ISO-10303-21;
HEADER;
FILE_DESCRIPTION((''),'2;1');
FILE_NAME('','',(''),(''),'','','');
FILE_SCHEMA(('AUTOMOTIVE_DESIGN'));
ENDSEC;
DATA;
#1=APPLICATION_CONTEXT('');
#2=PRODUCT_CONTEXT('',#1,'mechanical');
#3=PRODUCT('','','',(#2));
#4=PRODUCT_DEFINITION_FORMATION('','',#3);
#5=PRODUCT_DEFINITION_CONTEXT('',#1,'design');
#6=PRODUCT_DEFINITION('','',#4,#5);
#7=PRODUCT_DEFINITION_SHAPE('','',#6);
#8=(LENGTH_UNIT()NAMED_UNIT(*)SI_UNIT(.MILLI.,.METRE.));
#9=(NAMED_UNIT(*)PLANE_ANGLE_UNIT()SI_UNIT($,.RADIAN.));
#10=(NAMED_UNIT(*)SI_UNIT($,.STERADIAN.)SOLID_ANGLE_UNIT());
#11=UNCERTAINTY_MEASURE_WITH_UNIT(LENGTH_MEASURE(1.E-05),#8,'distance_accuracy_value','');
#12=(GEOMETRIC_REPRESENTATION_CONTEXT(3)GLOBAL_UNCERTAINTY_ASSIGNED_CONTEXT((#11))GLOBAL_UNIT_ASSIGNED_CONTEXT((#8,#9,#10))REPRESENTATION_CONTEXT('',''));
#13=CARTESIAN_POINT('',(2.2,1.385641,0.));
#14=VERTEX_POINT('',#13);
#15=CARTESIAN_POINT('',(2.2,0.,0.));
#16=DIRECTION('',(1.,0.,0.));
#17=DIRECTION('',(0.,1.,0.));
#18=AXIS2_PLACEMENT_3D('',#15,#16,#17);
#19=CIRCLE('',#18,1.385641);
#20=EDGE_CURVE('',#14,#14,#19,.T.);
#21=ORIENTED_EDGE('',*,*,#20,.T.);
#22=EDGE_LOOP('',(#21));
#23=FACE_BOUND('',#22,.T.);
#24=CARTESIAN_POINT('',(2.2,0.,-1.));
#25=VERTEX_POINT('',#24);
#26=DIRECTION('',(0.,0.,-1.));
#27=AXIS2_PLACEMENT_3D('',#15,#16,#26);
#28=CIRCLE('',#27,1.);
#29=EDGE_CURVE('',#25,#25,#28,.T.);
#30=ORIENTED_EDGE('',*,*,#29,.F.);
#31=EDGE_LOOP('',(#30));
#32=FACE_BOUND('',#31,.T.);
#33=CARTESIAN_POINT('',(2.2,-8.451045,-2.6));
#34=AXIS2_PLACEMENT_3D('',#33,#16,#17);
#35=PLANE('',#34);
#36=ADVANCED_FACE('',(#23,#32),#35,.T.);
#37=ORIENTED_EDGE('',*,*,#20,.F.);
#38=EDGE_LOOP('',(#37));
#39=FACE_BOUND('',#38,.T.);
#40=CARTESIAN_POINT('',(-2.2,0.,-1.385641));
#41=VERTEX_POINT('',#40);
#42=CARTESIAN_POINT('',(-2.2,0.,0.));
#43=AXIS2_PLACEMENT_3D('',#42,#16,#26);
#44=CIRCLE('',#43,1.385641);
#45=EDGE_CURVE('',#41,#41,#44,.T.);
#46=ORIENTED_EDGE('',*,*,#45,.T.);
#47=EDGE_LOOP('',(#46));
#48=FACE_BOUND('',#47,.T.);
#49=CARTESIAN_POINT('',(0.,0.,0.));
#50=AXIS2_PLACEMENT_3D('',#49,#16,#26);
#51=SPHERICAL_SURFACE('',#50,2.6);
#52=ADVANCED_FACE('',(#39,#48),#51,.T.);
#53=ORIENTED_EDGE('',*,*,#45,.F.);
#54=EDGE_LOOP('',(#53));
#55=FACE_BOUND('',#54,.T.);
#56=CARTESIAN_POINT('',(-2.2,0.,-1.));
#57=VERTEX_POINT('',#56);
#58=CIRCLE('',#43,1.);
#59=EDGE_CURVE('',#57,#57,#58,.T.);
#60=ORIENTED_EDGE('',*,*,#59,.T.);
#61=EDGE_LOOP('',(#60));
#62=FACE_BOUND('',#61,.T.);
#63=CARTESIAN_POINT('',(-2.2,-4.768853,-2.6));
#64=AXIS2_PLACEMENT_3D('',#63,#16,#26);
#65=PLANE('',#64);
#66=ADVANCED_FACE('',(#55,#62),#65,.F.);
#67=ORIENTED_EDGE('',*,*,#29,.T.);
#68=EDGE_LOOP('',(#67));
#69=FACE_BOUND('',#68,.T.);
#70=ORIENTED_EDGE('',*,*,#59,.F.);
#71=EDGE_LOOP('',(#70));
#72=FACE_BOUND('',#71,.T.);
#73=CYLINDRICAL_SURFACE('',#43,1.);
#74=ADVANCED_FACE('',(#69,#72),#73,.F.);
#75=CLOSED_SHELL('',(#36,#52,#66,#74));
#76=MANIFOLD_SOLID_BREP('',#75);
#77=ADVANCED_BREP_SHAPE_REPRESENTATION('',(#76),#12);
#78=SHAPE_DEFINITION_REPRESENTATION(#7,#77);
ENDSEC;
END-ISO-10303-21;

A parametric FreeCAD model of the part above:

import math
import FreeCAD as App
import Part
import Sketcher

V = App.Vector


def add_polygon(sketch, points):
    """Adds a closed chain of lines whose ends are joined by coincident constraints."""
    first, n = sketch.GeometryCount, len(points)
    for a, b in zip(points, points[1:] + points[:1]):
        sketch.addGeometry(Part.LineSegment(App.Vector(*a, 0), App.Vector(*b, 0)), False)
    for i in range(n):
        sketch.addConstraint(Sketcher.Constraint("Coincident", first + i, 2, first + (i + 1) % n, 1))

doc = App.newDocument("Part")
body = doc.addObject("PartDesign::Body", "Body")

# Sketch on XY plane
sketch1 = doc.addObject("Sketcher::SketchObject", "Sketch")
body.addObject(sketch1)
sketch1.AttachmentSupport = (doc.XY_Plane, [""])
sketch1.MapMode = "FlatFace"
sketch1.addGeometry([
    Part.ArcOfCircle(Part.Circle(V(0, 0, 0), V(0, 0, 1), 2.6), math.radians(-90), math.radians(0)),
    Part.ArcOfCircle(Part.Circle(V(0, 0, 0), V(0, 0, 1), 2.6), math.radians(0), math.radians(90)),
    Part.LineSegment(V(0, 2.6, 0), V(0, -2.6, 0)),
], False)
sketch1.addConstraint([
    Sketcher.Constraint("Tangent", 0, 2, 1, 1),
    Sketcher.Constraint("Coincident", 1, 2, 2, 1),
    Sketcher.Constraint("Coincident", 2, 2, 0, 1),
    Sketcher.Constraint("Vertical", 2),
    Sketcher.Constraint("Coincident", 0, 3, -1, 1),
    Sketcher.Constraint("Equal", 0, 1),
    Sketcher.Constraint("PointOnObject", 0, 2, -1),
    Sketcher.Constraint("PointOnObject", 1, 2, -2),
    Sketcher.Constraint("Radius", 0, 2.6),
])
revolution = doc.addObject("PartDesign::Revolution", "Revolution")
body.addObject(revolution)
revolution.Profile = sketch1
revolution.ReferenceAxis = (sketch1, ["V_Axis"])
revolution.Angle = 360

# Sketch on XY plane
sketch2 = doc.addObject("Sketcher::SketchObject", "Sketch001")
body.addObject(sketch2)
sketch2.AttachmentSupport = (doc.XY_Plane, [""])
sketch2.MapMode = "FlatFace"
add_polygon(sketch2, [(-2.6, 3.912446), (-2.6, -4.768853), (-2.2, -4.768853), (-2.2, 3.912446)])  # lines 0-3
add_polygon(sketch2, [(2.2, 3.912446), (2.2, -4.768853), (2.6, -4.768853), (2.6, 3.912446)])  # lines 4-7
sketch2.addConstraint([
    Sketcher.Constraint("Vertical", 0),
    Sketcher.Constraint("Horizontal", 1),
    Sketcher.Constraint("Vertical", 2),
    Sketcher.Constraint("Horizontal", 3),
    Sketcher.Constraint("Vertical", 4),
    Sketcher.Constraint("Horizontal", 5),
    Sketcher.Constraint("Vertical", 6),
    Sketcher.Constraint("Horizontal", 7),
    Sketcher.Constraint("Symmetric", 1, 2, 4, 2, -2),
    Sketcher.Constraint("Symmetric", 3, 2, 6, 2, -2),
    Sketcher.Constraint("DistanceX", 1, 1, 1, 2, 0.4),
    Sketcher.Constraint("DistanceX", 0, 2, -1, 1, 2.6),
    Sketcher.Constraint("DistanceY", 0, 2, 0, 1, 8.681299),
    Sketcher.Constraint("DistanceY", 0, 2, -1, 1, 4.768853),
])
pocket1 = doc.addObject("PartDesign::Pocket", "Pocket")
body.addObject(pocket1)
pocket1.Profile = sketch2
pocket1.Type = "ThroughAll"
pocket1.Midplane = True

# Sketch on YZ plane
sketch3 = doc.addObject("Sketcher::SketchObject", "Sketch002")
body.addObject(sketch3)
sketch3.AttachmentSupport = (doc.YZ_Plane, [""])
sketch3.MapMode = "FlatFace"
sketch3.AttachmentOffset = App.Placement(V(0, 0, 2.2), App.Rotation())
sketch3.addGeometry(Part.Circle(V(0, 0, 0), V(0, 0, 1), 1), False)
sketch3.addConstraint([
    Sketcher.Constraint("Coincident", 0, 3, -1, 1),
    Sketcher.Constraint("Diameter", 0, 2.0),
])
pocket2 = doc.addObject("PartDesign::Pocket", "Pocket001")
body.addObject(pocket2)
pocket2.Profile = sketch3
pocket2.Type = "ThroughAll"

doc.recompute()
